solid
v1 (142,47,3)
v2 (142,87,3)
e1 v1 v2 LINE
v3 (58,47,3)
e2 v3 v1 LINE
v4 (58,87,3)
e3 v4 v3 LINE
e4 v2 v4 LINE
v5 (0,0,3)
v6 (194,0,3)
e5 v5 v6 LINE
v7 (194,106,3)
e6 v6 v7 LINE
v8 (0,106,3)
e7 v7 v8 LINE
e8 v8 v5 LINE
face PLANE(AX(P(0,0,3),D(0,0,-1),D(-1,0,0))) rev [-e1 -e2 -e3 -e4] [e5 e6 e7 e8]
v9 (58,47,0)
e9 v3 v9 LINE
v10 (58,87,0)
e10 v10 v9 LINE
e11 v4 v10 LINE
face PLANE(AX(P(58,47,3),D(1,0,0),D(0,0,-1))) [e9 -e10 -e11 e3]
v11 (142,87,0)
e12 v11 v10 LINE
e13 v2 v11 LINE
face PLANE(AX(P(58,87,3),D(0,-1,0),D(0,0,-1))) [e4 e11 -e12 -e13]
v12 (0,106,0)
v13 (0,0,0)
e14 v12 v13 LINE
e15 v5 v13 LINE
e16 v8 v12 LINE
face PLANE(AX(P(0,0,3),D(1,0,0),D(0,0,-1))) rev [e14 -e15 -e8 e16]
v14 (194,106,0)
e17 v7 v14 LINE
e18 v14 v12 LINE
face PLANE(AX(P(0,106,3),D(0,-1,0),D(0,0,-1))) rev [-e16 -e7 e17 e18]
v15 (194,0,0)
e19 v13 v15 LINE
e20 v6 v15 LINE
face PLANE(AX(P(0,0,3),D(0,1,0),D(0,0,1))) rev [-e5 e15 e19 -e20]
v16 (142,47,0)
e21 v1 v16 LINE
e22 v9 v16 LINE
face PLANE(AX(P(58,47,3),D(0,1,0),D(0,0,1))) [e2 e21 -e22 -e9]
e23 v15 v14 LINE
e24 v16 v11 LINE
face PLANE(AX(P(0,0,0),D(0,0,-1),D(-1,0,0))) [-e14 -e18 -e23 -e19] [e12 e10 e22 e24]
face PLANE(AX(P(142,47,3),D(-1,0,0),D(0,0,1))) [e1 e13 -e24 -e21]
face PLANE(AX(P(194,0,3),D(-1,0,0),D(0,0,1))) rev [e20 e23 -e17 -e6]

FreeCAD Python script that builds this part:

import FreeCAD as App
import Part
import Sketcher
from FreeCAD import Vector
Q = App.Units.Quantity

doc = App.newDocument("Part")
body = doc.addObject("PartDesign::Body", "Body")

# Sketch on XY plane
sketch1 = body.newObject("Sketcher::SketchObject", "Sketch")
sketch1.AttachmentSupport = (doc.getObject("XY_Plane"), [""])
sketch1.MapMode = "FlatFace"
sketch1.addGeometry(Part.LineSegment(Vector(0, 106, 0), Vector(0, 0, 0)), False)
sketch1.addGeometry(Part.LineSegment(Vector(0, 0, 0), Vector(194, 0, 0)), False)
sketch1.addGeometry(Part.LineSegment(Vector(194, 0, 0), Vector(194, 106, 0)), False)
sketch1.addGeometry(Part.LineSegment(Vector(194, 106, 0), Vector(0, 106, 0)), False)
sketch1.addGeometry(Part.LineSegment(Vector(142, 47, 0), Vector(58, 47, 0)), False)
sketch1.addGeometry(Part.LineSegment(Vector(58, 47, 0), Vector(58, 87, 0)), False)
sketch1.addGeometry(Part.LineSegment(Vector(58, 87, 0), Vector(142, 87, 0)), False)
sketch1.addGeometry(Part.LineSegment(Vector(142, 87, 0), Vector(142, 47, 0)), False)
sketch1.addConstraint(Sketcher.Constraint("Coincident", 0, 2, 1, 1))
sketch1.addConstraint(Sketcher.Constraint("Coincident", 1, 2, 2, 1))
sketch1.addConstraint(Sketcher.Constraint("Coincident", 2, 2, 3, 1))
sketch1.addConstraint(Sketcher.Constraint("Coincident", 3, 2, 0, 1))
sketch1.addConstraint(Sketcher.Constraint("Coincident", 4, 2, 5, 1))
sketch1.addConstraint(Sketcher.Constraint("Coincident", 5, 2, 6, 1))
sketch1.addConstraint(Sketcher.Constraint("Coincident", 6, 2, 7, 1))
sketch1.addConstraint(Sketcher.Constraint("Coincident", 7, 2, 4, 1))
sketch1.addConstraint(Sketcher.Constraint("Vertical", 0))
sketch1.addConstraint(Sketcher.Constraint("Horizontal", 1))
sketch1.addConstraint(Sketcher.Constraint("Vertical", 2))
sketch1.addConstraint(Sketcher.Constraint("Horizontal", 3))
sketch1.addConstraint(Sketcher.Constraint("Horizontal", 4))
sketch1.addConstraint(Sketcher.Constraint("Vertical", 5))
sketch1.addConstraint(Sketcher.Constraint("Horizontal", 6))
sketch1.addConstraint(Sketcher.Constraint("Vertical", 7))
sketch1.addConstraint(Sketcher.Constraint("Coincident", 0, 2, -1, 1))
sketch1.addConstraint(Sketcher.Constraint("DistanceX", 1, 1, 1, 2, Q("194 mm")))
sketch1.addConstraint(Sketcher.Constraint("DistanceX", 4, 2, 4, 1, Q("84 mm")))
sketch1.addConstraint(Sketcher.Constraint("DistanceY", 0, 2, 0, 1, Q("106 mm")))
sketch1.addConstraint(Sketcher.Constraint("DistanceY", 5, 1, 5, 2, Q("40 mm")))
sketch1.addConstraint(Sketcher.Constraint("DistanceX", -1, 1, 4, 2, Q("58 mm")))
sketch1.addConstraint(Sketcher.Constraint("DistanceY", -1, 1, 4, 2, Q("47 mm")))
pad1 = body.newObject("PartDesign::Pad", "Pad")
pad1.Profile = sketch1
pad1.Length = 3

doc.recompute()
